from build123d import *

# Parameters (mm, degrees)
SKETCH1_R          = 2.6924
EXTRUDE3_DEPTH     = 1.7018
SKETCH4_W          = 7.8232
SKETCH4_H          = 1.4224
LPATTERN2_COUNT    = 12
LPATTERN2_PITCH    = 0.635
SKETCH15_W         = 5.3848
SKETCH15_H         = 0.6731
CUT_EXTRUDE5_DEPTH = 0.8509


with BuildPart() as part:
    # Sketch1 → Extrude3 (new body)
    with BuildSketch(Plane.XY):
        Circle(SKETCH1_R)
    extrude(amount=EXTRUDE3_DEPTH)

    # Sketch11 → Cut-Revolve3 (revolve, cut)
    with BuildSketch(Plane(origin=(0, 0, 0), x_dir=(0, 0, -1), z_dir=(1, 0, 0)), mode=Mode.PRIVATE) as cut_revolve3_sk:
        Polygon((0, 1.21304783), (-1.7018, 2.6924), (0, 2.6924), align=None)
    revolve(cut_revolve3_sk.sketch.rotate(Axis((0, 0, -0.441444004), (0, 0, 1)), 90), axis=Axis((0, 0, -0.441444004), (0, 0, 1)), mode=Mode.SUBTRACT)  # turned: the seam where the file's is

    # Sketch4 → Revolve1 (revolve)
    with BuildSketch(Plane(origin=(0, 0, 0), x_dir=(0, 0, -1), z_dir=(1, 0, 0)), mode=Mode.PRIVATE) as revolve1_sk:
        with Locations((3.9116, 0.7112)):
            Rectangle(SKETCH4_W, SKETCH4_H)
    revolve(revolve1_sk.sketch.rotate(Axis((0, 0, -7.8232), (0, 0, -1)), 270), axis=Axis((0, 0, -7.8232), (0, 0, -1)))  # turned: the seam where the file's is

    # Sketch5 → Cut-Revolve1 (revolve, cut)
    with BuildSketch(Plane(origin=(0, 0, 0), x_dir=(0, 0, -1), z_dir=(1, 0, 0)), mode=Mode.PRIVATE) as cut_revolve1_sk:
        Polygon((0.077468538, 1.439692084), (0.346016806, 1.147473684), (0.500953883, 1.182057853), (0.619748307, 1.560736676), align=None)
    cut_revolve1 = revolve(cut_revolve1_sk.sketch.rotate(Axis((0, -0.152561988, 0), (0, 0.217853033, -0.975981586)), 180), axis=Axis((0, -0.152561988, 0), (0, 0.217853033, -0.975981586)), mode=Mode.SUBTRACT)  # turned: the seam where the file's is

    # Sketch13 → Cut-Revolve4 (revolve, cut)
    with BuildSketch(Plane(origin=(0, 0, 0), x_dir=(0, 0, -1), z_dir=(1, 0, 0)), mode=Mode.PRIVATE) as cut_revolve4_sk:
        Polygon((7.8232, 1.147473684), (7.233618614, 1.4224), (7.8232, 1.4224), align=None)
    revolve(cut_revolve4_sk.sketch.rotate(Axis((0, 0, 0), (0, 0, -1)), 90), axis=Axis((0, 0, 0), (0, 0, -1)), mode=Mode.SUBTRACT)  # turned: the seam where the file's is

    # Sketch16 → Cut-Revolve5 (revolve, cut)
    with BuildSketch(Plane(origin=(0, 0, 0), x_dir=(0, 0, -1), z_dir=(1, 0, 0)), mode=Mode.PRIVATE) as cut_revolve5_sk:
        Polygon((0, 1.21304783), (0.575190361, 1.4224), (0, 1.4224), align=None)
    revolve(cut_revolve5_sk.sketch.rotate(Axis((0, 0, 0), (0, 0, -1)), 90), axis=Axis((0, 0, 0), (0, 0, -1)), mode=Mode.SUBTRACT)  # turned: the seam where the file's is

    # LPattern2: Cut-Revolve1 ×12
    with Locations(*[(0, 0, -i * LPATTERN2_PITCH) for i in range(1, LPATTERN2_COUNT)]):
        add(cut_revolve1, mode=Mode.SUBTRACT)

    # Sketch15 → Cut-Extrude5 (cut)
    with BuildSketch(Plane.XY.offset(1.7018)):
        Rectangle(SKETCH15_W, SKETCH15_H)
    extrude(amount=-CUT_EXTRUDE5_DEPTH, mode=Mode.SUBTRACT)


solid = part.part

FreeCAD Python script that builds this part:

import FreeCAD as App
import Part
import Sketcher
Q = App.Units.Quantity

doc = App.newDocument("Part")
body = doc.addObject("PartDesign::Body", "Body")

# Sketch on XY plane
sketch1 = body.newObject("Sketcher::SketchObject", "Sketch")
sketch1.AttachmentSupport = (doc.getObject("XY_Plane"), [""])
sketch1.MapMode = "FlatFace"
sketch1.addGeometry(Part.Circle(App.Vector(0, 0, 0), App.Vector(0, 0, 1), 2.7), False)
sketch1.addConstraint([
    Sketcher.Constraint("Coincident", 0, 3, -1, 1),
    Sketcher.Constraint("Diameter", 0, Q("0.212 in")),
])
pad1 = body.newObject("PartDesign::Pad", "Pad")
pad1.Profile = sketch1
pad1.Length = Q("0.067 in")

# Sketch on YZ plane
sketch2 = body.newObject("Sketcher::SketchObject", "Sketch001")
sketch2.AttachmentSupport = (doc.getObject("YZ_Plane"), [""])
sketch2.MapMode = "FlatFace"
sketch2.addGeometry([
    Part.LineSegment(App.Vector(2.7, 1.7, 0), App.Vector(1.2, 0, 0)),
    Part.LineSegment(App.Vector(1.2, 0, 0), App.Vector(2.7, 0, 0)),
    Part.LineSegment(App.Vector(2.7, 0, 0), App.Vector(2.7, 1.7, 0)),
], False)
sketch2.addConstraint([
    Sketcher.Constraint("Coincident", 0, 2, 1, 1),
    Sketcher.Constraint("Coincident", 1, 2, 2, 1),
    Sketcher.Constraint("Coincident", 2, 2, 0, 1),
    Sketcher.Constraint("Horizontal", 1),
    Sketcher.Constraint("Vertical", 2),
    Sketcher.Constraint("PointOnObject", 0, 2, -1),
    Sketcher.Constraint("Angle", 0, Q("-131 deg")),
    Sketcher.Constraint("DistanceY", 2, 1, 2, 2, Q("0.067 in")),
    Sketcher.Constraint("DistanceX", -1, 1, 1, 2, Q("0.106 in")),
])
groove = body.newObject("PartDesign::Groove", "Groove")
groove.Profile = sketch2
groove.ReferenceAxis = (sketch2, ["V_Axis"])
groove.Angle = 360

# Sketch on YZ plane
sketch3 = body.newObject("Sketcher::SketchObject", "Sketch002")
sketch3.AttachmentSupport = (doc.getObject("YZ_Plane"), [""])
sketch3.MapMode = "FlatFace"
sketch3.addGeometry([
    Part.LineSegment(App.Vector(1.4, 0, 0), App.Vector(0, 0, 0)),
    Part.LineSegment(App.Vector(0, 0, 0), App.Vector(0, -7.8, 0)),
    Part.LineSegment(App.Vector(0, -7.8, 0), App.Vector(1.4, -7.8, 0)),
    Part.LineSegment(App.Vector(1.4, -7.8, 0), App.Vector(1.4, 0, 0)),
], False)
sketch3.addConstraint([
    Sketcher.Constraint("Coincident", 0, 2, 1, 1),
    Sketcher.Constraint("Coincident", 1, 2, 2, 1),
    Sketcher.Constraint("Coincident", 2, 2, 3, 1),
    Sketcher.Constraint("Coincident", 3, 2, 0, 1),
    Sketcher.Constraint("Horizontal", 0),
    Sketcher.Constraint("Vertical", 1),
    Sketcher.Constraint("Horizontal", 2),
    Sketcher.Constraint("Vertical", 3),
    Sketcher.Constraint("Coincident", 0, 2, -1, 1),
    Sketcher.Constraint("DistanceX", 0, 2, 0, 1, Q("0.056 in")),
    Sketcher.Constraint("DistanceY", 1, 2, 1, 1, Q("0.308 in")),
])
revolution = body.newObject("PartDesign::Revolution", "Revolution")
revolution.Profile = sketch3
revolution.ReferenceAxis = (sketch3, ["V_Axis"])
revolution.Angle = 360

# Sketch on YZ plane
sketch4 = body.newObject("Sketcher::SketchObject", "Sketch003")
sketch4.AttachmentSupport = (doc.getObject("YZ_Plane"), [""])
sketch4.MapMode = "FlatFace"
sketch4.addGeometry([
    Part.LineSegment(App.Vector(1.44, -0.08, 0), App.Vector(1.15, -0.35, 0)),
    Part.LineSegment(App.Vector(1.15, -0.35, 0), App.Vector(1.18, -0.5, 0)),
    Part.LineSegment(App.Vector(1.18, -0.5, 0), App.Vector(1.56, -0.62, 0)),
    Part.LineSegment(App.Vector(1.56, -0.62, 0), App.Vector(1.44, -0.08, 0)),
], False)
sketch4.addGeometry(Part.LineSegment(App.Vector(-0.06, -0.41, 0), App.Vector(0.06, -0.95, 0)), True)  # axis
sketch4.addConstraint([
    Sketcher.Constraint("Coincident", 0, 2, 1, 1),
    Sketcher.Constraint("Coincident", 1, 2, 2, 1),
    Sketcher.Constraint("Coincident", 2, 2, 3, 1),
    Sketcher.Constraint("Coincident", 3, 2, 0, 1),
    Sketcher.Constraint("Parallel", 1, 3),
    Sketcher.Constraint("Parallel", 3, 4),
    Sketcher.Constraint("Equal", 0, 2),
    Sketcher.Constraint("Equal", 3, 4),
    Sketcher.Constraint("Distance", 0, Q("0.015625 in")),
    Sketcher.Constraint("DistanceY", 1, 2, 0, 2, Q("0.0060999 in")),
    Sketcher.Constraint("DistanceY", 4, 2, 0, 2, 0.608601),
    Sketcher.Constraint("Distance", 1, 0.15875),
    Sketcher.Constraint("DistanceY", 2, 2, -1, 1, 0.619748),
    Sketcher.Constraint("DistanceY", 3, 2, -1, 1, 0.077469),
    Sketcher.Constraint("DistanceX", 4, 1, 1, 2, 1.24258),
    Sketcher.Constraint("DistanceX", -1, 1, 0, 2, 1.147474),
])
groove2 = body.newObject("PartDesign::Groove", "Groove001")
groove2.Profile = sketch4
groove2.ReferenceAxis = (sketch4, ["Axis0"])
groove2.Angle = 360

# Sketch on YZ plane
sketch5 = body.newObject("Sketcher::SketchObject", "Sketch004")
sketch5.AttachmentSupport = (doc.getObject("YZ_Plane"), [""])
sketch5.MapMode = "FlatFace"
sketch5.addGeometry([
    Part.LineSegment(App.Vector(1.42, -7.23, 0), App.Vector(1.15, -7.82, 0)),
    Part.LineSegment(App.Vector(1.15, -7.82, 0), App.Vector(1.42, -7.82, 0)),
    Part.LineSegment(App.Vector(1.42, -7.82, 0), App.Vector(1.42, -7.23, 0)),
], False)
sketch5.addConstraint([
    Sketcher.Constraint("Coincident", 0, 2, 1, 1),
    Sketcher.Constraint("Coincident", 1, 2, 2, 1),
    Sketcher.Constraint("Coincident", 2, 2, 0, 1),
    Sketcher.Constraint("Horizontal", 1),
    Sketcher.Constraint("Vertical", 2),
    Sketcher.Constraint("Angle", 0, Q("-115 deg")),
    Sketcher.Constraint("DistanceY", 0, 2, -1, 1, Q("0.308 in")),
    Sketcher.Constraint("DistanceX", -1, 1, 1, 2, Q("0.056 in")),
    Sketcher.Constraint("DistanceY", 2, 1, 2, 2, 0.589581),
])
groove3 = body.newObject("PartDesign::Groove", "Groove002")
groove3.Profile = sketch5
groove3.ReferenceAxis = (sketch5, ["V_Axis"])
groove3.Angle = 360

# Sketch on YZ plane
sketch6 = body.newObject("Sketcher::SketchObject", "Sketch005")
sketch6.AttachmentSupport = (doc.getObject("YZ_Plane"), [""])
sketch6.MapMode = "FlatFace"
sketch6.addGeometry([
    Part.LineSegment(App.Vector(1.21, 0, 0), App.Vector(1.42, -0.58, 0)),
    Part.LineSegment(App.Vector(1.42, -0.58, 0), App.Vector(1.42, 0, 0)),
    Part.LineSegment(App.Vector(1.42, 0, 0), App.Vector(1.21, 0, 0)),
], False)
sketch6.addConstraint([
    Sketcher.Constraint("Coincident", 0, 2, 1, 1),
    Sketcher.Constraint("Coincident", 1, 2, 2, 1),
    Sketcher.Constraint("Coincident", 2, 2, 0, 1),
    Sketcher.Constraint("Vertical", 1),
    Sketcher.Constraint("Horizontal", 2),
    Sketcher.Constraint("PointOnObject", 1, 2, -1),
    Sketcher.Constraint("Angle", 0, Q("-70 deg")),
    Sketcher.Constraint("DistanceX", -1, 1, 0, 2, Q("0.056 in")),
    Sketcher.Constraint("DistanceY", 1, 1, 1, 2, 0.57519),
])
groove4 = body.newObject("PartDesign::Groove", "Groove003")
groove4.Profile = sketch6
groove4.ReferenceAxis = (sketch6, ["V_Axis"])
groove4.Angle = 360
doc.recompute()

linearpattern = body.newObject("PartDesign::LinearPattern", "LinearPattern")
linearpattern.Originals = [groove2]
linearpattern.Direction = (doc.getObject("Z_Axis"), [""])
linearpattern.Mode = "offset"
linearpattern.Offset = Q("0.025 in")
linearpattern.Occurrences = 12
linearpattern.Reversed = True
body.Tip = linearpattern

# Sketch on XY plane
sketch7 = body.newObject("Sketcher::SketchObject", "Sketch006")
sketch7.AttachmentSupport = (doc.getObject("XY_Plane"), [""])
sketch7.MapMode = "FlatFace"
sketch7.AttachmentOffset = App.Placement(App.Vector(0, 0, 0.067 * 25.4), App.Rotation())
sketch7.addGeometry([
    Part.LineSegment(App.Vector(-2.7, 0.3, 0), App.Vector(-2.7, -0.3, 0)),
    Part.LineSegment(App.Vector(-2.7, -0.3, 0), App.Vector(2.7, -0.3, 0)),
    Part.LineSegment(App.Vector(2.7, -0.3, 0), App.Vector(2.7, 0.3, 0)),
    Part.LineSegment(App.Vector(2.7, 0.3, 0), App.Vector(-2.7, 0.3, 0)),
], False)
sketch7.addConstraint([
    Sketcher.Constraint("Coincident", 0, 2, 1, 1),
    Sketcher.Constraint("Coincident", 1, 2, 2, 1),
    Sketcher.Constraint("Coincident", 2, 2, 3, 1),
    Sketcher.Constraint("Coincident", 3, 2, 0, 1),
    Sketcher.Constraint("Vertical", 0),
    Sketcher.Constraint("Horizontal", 1),
    Sketcher.Constraint("Vertical", 2),
    Sketcher.Constraint("Horizontal", 3),
    Sketcher.Constraint("Symmetric", 0, 2, 2, 2, -1, 1),
    Sketcher.Constraint("DistanceX", 1, 1, 1, 2, Q("0.212 in")),
    Sketcher.Constraint("DistanceY", 0, 2, 0, 1, Q("0.0265 in")),
])
pocket1 = body.newObject("PartDesign::Pocket", "Pocket")
pocket1.Profile = sketch7
pocket1.Length = Q("0.0335 in")

doc.recompute()
